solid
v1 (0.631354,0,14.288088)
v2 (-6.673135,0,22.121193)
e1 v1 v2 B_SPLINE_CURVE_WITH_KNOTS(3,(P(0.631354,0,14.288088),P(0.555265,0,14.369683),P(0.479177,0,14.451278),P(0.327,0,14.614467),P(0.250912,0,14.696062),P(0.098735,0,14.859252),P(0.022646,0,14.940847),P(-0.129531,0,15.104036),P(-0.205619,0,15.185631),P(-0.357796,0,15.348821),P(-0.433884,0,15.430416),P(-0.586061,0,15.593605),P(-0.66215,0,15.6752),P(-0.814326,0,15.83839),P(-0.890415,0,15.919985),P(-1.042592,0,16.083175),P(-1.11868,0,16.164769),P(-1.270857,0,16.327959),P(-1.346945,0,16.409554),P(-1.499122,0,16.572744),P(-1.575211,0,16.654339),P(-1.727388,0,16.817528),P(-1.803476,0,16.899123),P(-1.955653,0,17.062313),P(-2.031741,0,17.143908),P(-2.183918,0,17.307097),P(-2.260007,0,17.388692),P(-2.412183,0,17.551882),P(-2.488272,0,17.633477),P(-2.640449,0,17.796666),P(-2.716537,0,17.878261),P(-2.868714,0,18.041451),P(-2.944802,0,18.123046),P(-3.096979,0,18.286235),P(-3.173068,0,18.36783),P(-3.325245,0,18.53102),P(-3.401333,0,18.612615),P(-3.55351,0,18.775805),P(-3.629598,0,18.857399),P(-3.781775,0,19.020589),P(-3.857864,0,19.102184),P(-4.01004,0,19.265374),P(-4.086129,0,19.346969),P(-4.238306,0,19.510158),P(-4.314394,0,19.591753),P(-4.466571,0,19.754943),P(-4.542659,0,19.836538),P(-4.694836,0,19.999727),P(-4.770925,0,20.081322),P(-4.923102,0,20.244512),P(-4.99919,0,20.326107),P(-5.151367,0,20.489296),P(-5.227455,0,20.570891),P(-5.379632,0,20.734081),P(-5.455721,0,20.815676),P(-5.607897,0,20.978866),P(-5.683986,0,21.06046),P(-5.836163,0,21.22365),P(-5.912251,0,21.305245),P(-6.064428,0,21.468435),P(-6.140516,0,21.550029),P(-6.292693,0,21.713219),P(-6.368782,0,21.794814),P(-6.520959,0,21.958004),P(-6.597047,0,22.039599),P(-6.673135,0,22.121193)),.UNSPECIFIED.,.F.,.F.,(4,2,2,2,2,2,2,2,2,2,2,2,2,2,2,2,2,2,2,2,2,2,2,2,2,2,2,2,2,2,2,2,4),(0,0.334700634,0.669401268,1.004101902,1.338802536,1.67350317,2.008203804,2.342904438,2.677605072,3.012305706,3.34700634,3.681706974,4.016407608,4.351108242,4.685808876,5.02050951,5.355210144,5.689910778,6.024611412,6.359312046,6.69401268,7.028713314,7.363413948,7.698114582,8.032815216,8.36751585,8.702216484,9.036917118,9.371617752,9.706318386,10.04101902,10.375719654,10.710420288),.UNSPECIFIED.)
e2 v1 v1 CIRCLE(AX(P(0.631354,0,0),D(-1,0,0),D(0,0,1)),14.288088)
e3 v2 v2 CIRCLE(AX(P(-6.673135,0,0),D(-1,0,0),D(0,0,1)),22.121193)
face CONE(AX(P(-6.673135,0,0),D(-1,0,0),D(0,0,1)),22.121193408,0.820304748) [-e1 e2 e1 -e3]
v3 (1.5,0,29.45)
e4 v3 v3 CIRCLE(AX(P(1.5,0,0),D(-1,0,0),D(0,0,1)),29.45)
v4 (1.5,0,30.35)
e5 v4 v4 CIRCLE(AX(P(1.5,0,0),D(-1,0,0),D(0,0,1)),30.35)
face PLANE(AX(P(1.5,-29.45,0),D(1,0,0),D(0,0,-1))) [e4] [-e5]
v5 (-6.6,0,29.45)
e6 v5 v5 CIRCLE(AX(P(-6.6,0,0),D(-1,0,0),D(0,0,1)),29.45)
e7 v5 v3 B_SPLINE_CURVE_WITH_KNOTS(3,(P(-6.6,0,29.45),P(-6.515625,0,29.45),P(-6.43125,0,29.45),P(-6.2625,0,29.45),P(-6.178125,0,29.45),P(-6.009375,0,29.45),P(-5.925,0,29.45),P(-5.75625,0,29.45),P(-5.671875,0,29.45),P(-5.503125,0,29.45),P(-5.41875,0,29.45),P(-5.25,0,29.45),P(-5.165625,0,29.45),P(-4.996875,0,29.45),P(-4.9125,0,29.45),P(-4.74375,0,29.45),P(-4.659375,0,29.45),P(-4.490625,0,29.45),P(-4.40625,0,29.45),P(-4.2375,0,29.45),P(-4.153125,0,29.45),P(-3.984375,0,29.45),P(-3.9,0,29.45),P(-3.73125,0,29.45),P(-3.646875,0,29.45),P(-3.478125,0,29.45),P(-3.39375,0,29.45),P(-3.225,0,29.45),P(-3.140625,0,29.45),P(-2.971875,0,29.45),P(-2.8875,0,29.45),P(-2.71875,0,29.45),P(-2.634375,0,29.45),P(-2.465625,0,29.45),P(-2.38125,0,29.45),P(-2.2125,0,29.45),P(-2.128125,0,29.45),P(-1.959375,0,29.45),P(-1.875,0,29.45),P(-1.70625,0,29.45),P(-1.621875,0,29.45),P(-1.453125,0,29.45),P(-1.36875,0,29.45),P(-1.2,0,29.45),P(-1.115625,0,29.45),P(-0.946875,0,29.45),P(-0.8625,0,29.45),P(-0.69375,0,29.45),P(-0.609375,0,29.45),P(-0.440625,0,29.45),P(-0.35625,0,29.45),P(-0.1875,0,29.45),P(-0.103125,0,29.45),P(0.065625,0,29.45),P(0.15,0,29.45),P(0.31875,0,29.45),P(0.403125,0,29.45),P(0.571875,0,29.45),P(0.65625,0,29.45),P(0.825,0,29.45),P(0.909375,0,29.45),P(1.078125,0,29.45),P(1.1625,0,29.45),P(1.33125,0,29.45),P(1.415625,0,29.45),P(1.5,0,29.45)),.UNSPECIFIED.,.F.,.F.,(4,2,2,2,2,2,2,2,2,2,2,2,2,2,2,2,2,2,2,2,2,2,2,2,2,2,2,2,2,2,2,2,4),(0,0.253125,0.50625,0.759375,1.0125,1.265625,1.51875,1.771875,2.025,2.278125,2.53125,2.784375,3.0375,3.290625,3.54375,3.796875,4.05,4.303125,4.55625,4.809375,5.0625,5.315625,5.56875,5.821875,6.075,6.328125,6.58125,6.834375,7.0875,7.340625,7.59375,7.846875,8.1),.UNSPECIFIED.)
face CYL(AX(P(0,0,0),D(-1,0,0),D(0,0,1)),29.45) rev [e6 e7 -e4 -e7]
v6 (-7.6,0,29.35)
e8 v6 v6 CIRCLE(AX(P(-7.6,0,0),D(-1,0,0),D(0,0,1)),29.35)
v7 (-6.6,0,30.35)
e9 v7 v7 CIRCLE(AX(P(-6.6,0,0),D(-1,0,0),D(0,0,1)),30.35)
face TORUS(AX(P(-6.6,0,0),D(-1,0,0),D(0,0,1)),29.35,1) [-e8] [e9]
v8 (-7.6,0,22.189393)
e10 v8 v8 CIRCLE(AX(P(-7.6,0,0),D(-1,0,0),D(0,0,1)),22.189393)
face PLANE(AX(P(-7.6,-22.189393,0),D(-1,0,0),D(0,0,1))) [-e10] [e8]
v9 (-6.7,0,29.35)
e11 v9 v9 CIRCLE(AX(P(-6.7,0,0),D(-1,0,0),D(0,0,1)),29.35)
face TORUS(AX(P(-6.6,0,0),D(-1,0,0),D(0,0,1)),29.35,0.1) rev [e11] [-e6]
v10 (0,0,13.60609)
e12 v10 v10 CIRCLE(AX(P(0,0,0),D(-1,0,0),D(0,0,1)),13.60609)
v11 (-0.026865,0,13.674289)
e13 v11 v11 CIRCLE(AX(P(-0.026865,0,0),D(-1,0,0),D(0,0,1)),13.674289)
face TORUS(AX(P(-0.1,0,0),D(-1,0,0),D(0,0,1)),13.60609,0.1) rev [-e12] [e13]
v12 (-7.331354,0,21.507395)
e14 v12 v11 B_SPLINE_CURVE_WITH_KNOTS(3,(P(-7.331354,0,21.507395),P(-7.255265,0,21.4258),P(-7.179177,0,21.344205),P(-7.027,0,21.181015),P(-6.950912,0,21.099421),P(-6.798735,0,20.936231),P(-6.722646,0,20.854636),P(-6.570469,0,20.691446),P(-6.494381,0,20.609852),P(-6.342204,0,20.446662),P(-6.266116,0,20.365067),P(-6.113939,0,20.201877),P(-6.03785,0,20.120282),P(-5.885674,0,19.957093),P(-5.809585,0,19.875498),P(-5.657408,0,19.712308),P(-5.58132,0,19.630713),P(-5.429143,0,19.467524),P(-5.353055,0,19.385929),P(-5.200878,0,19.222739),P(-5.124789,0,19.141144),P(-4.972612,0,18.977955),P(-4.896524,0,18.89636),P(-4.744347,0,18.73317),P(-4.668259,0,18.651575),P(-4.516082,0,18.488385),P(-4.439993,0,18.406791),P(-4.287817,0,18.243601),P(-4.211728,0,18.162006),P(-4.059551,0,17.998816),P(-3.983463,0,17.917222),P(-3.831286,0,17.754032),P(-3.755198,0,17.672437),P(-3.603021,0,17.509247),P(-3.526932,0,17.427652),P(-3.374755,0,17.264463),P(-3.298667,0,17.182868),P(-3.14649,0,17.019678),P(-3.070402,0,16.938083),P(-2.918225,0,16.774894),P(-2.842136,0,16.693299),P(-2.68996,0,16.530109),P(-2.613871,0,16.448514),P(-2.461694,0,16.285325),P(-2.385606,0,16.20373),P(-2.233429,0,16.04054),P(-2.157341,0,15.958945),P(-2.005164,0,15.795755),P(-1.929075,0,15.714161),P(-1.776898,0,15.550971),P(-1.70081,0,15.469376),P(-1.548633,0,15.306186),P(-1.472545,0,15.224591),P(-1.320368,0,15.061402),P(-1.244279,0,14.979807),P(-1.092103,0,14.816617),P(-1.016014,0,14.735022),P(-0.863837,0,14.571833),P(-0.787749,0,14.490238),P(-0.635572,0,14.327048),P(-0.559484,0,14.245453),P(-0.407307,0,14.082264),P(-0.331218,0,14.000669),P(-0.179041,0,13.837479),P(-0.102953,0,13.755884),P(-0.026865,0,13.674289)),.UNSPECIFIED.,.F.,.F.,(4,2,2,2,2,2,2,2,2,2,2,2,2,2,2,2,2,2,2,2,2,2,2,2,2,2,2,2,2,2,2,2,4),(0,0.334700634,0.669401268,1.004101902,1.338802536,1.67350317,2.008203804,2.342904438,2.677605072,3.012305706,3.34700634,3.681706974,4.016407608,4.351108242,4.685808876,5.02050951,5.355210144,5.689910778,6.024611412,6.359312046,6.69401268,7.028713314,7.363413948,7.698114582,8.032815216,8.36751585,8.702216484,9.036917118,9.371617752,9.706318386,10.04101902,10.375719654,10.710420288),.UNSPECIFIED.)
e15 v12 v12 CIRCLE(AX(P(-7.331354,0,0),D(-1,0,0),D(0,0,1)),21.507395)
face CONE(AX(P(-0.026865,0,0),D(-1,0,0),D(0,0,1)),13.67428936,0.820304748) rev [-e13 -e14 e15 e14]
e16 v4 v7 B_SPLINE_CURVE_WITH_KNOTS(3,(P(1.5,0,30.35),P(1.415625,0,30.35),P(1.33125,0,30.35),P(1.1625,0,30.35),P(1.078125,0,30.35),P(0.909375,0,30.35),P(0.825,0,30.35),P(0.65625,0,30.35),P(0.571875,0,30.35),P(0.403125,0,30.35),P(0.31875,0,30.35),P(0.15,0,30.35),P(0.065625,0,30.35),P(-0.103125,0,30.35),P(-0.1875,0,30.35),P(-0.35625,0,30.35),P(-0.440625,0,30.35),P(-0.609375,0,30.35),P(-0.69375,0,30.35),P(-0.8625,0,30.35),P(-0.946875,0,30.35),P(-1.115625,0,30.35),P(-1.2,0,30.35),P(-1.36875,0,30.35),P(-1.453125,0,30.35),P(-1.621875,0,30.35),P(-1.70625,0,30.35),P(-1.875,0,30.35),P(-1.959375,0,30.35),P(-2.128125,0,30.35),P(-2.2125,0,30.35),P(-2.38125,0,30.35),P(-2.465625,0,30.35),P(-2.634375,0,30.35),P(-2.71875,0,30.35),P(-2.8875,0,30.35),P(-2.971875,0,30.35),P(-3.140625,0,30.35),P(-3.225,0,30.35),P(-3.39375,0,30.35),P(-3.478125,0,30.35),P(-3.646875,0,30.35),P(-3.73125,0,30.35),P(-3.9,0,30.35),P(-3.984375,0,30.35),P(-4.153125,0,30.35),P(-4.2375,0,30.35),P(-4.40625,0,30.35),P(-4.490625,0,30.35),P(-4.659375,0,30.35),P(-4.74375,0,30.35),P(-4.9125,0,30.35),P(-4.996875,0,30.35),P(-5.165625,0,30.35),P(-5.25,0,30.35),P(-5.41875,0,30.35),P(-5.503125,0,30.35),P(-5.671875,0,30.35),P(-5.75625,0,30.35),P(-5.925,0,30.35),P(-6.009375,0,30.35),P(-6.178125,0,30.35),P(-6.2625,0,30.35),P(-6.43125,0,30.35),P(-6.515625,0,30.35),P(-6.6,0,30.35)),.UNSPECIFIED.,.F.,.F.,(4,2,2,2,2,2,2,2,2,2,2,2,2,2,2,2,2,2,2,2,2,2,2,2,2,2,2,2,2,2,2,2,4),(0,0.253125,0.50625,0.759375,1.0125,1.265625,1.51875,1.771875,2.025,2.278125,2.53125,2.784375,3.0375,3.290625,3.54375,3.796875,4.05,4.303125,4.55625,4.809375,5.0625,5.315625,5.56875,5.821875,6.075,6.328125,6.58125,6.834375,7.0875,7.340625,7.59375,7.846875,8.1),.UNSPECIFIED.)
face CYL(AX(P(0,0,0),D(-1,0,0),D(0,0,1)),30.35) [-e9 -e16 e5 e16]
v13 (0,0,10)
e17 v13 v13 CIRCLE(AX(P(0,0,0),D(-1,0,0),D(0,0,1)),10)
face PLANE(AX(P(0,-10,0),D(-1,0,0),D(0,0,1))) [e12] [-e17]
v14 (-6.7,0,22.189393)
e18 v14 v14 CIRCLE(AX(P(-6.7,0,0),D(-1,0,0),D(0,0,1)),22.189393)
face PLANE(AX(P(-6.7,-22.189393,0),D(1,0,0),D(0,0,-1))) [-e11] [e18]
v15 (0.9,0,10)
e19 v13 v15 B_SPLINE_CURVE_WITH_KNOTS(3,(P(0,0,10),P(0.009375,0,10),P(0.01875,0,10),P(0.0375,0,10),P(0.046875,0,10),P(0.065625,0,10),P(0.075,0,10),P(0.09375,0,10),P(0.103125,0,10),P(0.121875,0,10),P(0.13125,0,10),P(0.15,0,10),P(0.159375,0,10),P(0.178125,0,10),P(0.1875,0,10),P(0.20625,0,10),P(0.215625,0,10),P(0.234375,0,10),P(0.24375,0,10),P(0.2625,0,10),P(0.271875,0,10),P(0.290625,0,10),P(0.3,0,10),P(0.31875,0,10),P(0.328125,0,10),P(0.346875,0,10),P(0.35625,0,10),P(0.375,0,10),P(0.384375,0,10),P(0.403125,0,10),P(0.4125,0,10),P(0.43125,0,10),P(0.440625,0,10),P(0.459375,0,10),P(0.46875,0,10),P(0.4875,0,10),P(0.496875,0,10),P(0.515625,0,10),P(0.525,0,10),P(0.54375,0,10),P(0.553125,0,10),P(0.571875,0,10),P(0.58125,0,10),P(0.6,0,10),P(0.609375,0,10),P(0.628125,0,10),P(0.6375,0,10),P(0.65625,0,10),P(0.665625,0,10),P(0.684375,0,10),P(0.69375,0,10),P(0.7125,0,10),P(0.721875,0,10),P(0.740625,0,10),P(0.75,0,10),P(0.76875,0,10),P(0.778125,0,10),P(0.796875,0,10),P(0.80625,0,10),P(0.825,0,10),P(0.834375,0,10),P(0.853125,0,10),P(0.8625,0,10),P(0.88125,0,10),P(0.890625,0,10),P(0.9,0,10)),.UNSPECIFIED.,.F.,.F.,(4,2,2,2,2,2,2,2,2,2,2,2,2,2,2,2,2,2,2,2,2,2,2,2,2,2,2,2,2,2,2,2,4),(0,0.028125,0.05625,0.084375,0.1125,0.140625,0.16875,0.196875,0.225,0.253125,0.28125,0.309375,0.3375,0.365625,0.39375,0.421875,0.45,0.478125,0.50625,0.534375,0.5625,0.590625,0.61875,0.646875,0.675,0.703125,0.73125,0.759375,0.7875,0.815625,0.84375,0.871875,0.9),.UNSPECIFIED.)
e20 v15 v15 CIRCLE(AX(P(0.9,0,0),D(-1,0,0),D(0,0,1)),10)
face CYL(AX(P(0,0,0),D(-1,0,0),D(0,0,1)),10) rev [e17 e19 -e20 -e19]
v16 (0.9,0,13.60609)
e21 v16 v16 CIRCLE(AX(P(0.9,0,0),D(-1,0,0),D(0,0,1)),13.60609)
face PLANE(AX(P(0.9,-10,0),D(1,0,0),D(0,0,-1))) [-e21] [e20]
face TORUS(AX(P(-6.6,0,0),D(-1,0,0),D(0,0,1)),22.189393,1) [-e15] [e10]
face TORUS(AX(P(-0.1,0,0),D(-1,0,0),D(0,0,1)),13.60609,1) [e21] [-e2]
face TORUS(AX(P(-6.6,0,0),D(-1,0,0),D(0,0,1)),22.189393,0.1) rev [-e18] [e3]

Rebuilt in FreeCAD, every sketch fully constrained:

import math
import FreeCAD as App
import Part
import Sketcher

V = App.Vector
Q = App.Units.Quantity

doc = App.newDocument("Part")
params = doc.addObject("Spreadsheet::Sheet", "Params")
for row, (alias, value) in enumerate([
    ("sketch1_radius", "1 mm"),
    ("sketch1_radius2", "0.1 mm"),
    ("sketch1_width", "8.1 mm"),
    ("revolution_angle", "360 deg"),
], start=1):
    params.set(f"A{row}", alias)
    params.set(f"B{row}", "=" + value)
    params.setAlias(f"B{row}", alias)

body = doc.addObject("PartDesign::Body", "Body")

sketch1 = doc.addObject("Sketcher::SketchObject", "Sketch")
body.addObject(sketch1)
sketch1.AttachmentSupport = (doc.XY_Plane, [""])
sketch1.MapMode = "FlatFace"
sketch1.addGeometry(Part.LineSegment(V(0.9, -13.61, 0), V(0.9, -10, 0)), False)
sketch1.addGeometry(Part.LineSegment(V(0.9, -10, 0), V(0, -10, 0)), False)
sketch1.addGeometry(Part.LineSegment(V(0, -10, 0), V(0, -13.61, 0)), False)
sketch1.addGeometry(Part.ArcOfCircle(Part.Circle(V(-0.1, -13.61, 0), V(0, 0, 1), 0.1), math.radians(-43), math.radians(0)), False)
sketch1.addGeometry(Part.LineSegment(V(-0.03, -13.67, 0), V(-7.33, -21.51, 0)), False)
sketch1.addGeometry(Part.ArcOfCircle(Part.Circle(V(-6.6, -22.19, 0), V(0, 0, 1), 1), math.radians(137), math.radians(180)), False)
sketch1.addGeometry(Part.LineSegment(V(-7.6, -22.19, 0), V(-7.6, -29.35, 0)), False)
sketch1.addGeometry(Part.ArcOfCircle(Part.Circle(V(-6.6, -29.35, 0), V(0, 0, 1), 1), math.radians(-180), math.radians(-90)), False)
sketch1.addGeometry(Part.LineSegment(V(-6.6, -30.35, 0), V(1.5, -30.35, 0)), False)
sketch1.addGeometry(Part.LineSegment(V(1.5, -30.35, 0), V(1.5, -29.45, 0)), False)
sketch1.addGeometry(Part.LineSegment(V(1.5, -29.45, 0), V(-6.6, -29.45, 0)), False)
sketch1.addGeometry(Part.ArcOfCircle(Part.Circle(V(-6.6, -29.35, 0), V(0, 0, 1), 0.1), math.radians(180), math.radians(270)), False)
sketch1.addGeometry(Part.LineSegment(V(-6.7, -29.35, 0), V(-6.7, -22.19, 0)), False)
sketch1.addGeometry(Part.ArcOfCircle(Part.Circle(V(-6.6, -22.19, 0), V(0, 0, 1), 0.1), math.radians(137), math.radians(180)), False)
sketch1.addGeometry(Part.LineSegment(V(-6.67, -22.12, 0), V(0.63, -14.29, 0)), False)
sketch1.addGeometry(Part.ArcOfCircle(Part.Circle(V(-0.1, -13.61, 0), V(0, 0, 1), 1), math.radians(-43), math.radians(0)), False)
sketch1.addConstraint(Sketcher.Constraint("Coincident", 0, 2, 1, 1))
sketch1.addConstraint(Sketcher.Constraint("Coincident", 1, 2, 2, 1))
sketch1.addConstraint(Sketcher.Constraint("Tangent", 2, 2, 3, 2))
sketch1.addConstraint(Sketcher.Constraint("Tangent", 3, 1, 4, 1))
sketch1.addConstraint(Sketcher.Constraint("Tangent", 4, 2, 5, 1))
sketch1.addConstraint(Sketcher.Constraint("Tangent", 5, 2, 6, 1))
sketch1.addConstraint(Sketcher.Constraint("Tangent", 6, 2, 7, 1))
sketch1.addConstraint(Sketcher.Constraint("Tangent", 7, 2, 8, 1))
sketch1.addConstraint(Sketcher.Constraint("Coincident", 8, 2, 9, 1))
sketch1.addConstraint(Sketcher.Constraint("Coincident", 9, 2, 10, 1))
sketch1.addConstraint(Sketcher.Constraint("Tangent", 10, 2, 11, 2))
sketch1.addConstraint(Sketcher.Constraint("Tangent", 11, 1, 12, 1))
sketch1.addConstraint(Sketcher.Constraint("Tangent", 12, 2, 13, 2))
sketch1.addConstraint(Sketcher.Constraint("Tangent", 13, 1, 14, 1))
sketch1.addConstraint(Sketcher.Constraint("Tangent", 14, 2, 15, 1))
sketch1.addConstraint(Sketcher.Constraint("Tangent", 15, 2, 0, 1))
sketch1.addConstraint(Sketcher.Constraint("Vertical", 0))
sketch1.addConstraint(Sketcher.Constraint("Horizontal", 1))
sketch1.addConstraint(Sketcher.Constraint("Vertical", 2))
sketch1.addConstraint(Sketcher.Constraint("Vertical", 6))
sketch1.addConstraint(Sketcher.Constraint("Horizontal", 8))
sketch1.addConstraint(Sketcher.Constraint("Vertical", 9))
sketch1.addConstraint(Sketcher.Constraint("Horizontal", 10))
sketch1.addConstraint(Sketcher.Constraint("Vertical", 12))
sketch1.addConstraint(Sketcher.Constraint("Coincident", 11, 3, 7, 3))
sketch1.addConstraint(Sketcher.Constraint("Coincident", 13, 3, 5, 3))
sketch1.addConstraint(Sketcher.Constraint("Coincident", 15, 3, 3, 3))
sketch1.addConstraint(Sketcher.Constraint("Equal", 5, 7))
sketch1.addConstraint(Sketcher.Constraint("Equal", 3, 11))
sketch1.addConstraint(Sketcher.Constraint("Equal", 7, 15))
sketch1.addConstraint(Sketcher.Constraint("PointOnObject", 1, 2, -2))
sketch1.addConstraint(Sketcher.Constraint("Radius", 5, Q("1 mm")))
sketch1.addConstraint(Sketcher.Constraint("Radius", 3, Q("0.1 mm")))
sketch1.addConstraint(Sketcher.Constraint("Angle", 4, Q("-133 deg")))
sketch1.addConstraint(Sketcher.Constraint("DistanceX", 8, 1, 8, 2, Q("8.1 mm")))
sketch1.addConstraint(Sketcher.Constraint("DistanceY", 0, 2, -1, 1, Q("10 mm")))
sketch1.addConstraint(Sketcher.Constraint("DistanceX", 5, 3, -1, 1, Q("6.6 mm")))
sketch1.addConstraint(Sketcher.Constraint("DistanceY", 7, 3, -1, 1, Q("29.35 mm")))
sketch1.addConstraint(Sketcher.Constraint("DistanceY", 0, 1, 0, 2, Q("3.60609 mm")))
sketch1.setExpression("Constraints[31]", "Params.sketch1_radius")
sketch1.setExpression("Constraints[32]", "Params.sketch1_radius2")
sketch1.setExpression("Constraints[34]", "Params.sketch1_width")
revolution = doc.addObject("PartDesign::Revolution", "Revolution")
body.addObject(revolution)
revolution.Profile = sketch1
revolution.ReferenceAxis = (sketch1, ["H_Axis"])
revolution.setExpression("Angle", "Params.revolution_angle")

doc.recompute()
